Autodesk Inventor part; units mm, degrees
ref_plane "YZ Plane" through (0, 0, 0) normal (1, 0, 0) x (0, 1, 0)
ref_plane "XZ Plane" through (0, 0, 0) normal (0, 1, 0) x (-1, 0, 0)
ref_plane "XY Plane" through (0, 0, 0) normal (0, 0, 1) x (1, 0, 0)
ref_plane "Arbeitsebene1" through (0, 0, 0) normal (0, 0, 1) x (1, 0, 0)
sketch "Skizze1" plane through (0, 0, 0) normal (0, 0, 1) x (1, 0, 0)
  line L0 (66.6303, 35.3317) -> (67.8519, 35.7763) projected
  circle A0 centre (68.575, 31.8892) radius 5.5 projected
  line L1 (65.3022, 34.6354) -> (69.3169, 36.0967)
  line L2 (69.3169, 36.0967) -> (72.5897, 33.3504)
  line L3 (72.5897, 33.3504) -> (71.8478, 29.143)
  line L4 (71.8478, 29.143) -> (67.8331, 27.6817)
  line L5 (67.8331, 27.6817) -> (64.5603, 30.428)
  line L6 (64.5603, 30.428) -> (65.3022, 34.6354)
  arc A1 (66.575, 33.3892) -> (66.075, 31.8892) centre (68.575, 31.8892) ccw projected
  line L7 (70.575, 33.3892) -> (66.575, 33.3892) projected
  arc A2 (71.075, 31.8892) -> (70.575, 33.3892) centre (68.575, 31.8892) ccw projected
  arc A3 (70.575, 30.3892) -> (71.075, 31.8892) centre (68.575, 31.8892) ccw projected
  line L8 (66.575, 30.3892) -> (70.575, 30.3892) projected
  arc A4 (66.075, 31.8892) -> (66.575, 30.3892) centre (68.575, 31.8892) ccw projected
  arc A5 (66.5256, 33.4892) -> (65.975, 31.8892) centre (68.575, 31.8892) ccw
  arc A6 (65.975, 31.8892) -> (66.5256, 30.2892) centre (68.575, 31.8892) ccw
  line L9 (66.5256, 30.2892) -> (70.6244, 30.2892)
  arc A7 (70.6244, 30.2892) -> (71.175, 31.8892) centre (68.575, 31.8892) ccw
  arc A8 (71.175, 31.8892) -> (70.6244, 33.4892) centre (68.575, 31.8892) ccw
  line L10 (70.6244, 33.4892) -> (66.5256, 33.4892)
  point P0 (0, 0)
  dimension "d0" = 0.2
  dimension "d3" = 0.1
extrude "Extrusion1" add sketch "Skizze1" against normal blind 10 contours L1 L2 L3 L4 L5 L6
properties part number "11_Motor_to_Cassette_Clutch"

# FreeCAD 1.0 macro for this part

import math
import FreeCAD as App
import Part
import Sketcher

V = App.Vector
Q = App.Units.Quantity

doc = App.newDocument("Part")
body = doc.addObject("PartDesign::Body", "Body")

# Sketch on XY plane
sketch1 = doc.addObject("Sketcher::SketchObject", "Sketch")
body.addObject(sketch1)
sketch1.AttachmentSupport = (doc.XY_Plane, [""])
sketch1.MapMode = "FlatFace"
sketch1.addGeometry([
    Part.LineSegment(V(69.3, 36.1, 0), V(65.3, 34.6, 0)),  # 0
    Part.LineSegment(V(65.3, 34.6, 0), V(64.6, 30.4, 0)),  # 1
    Part.LineSegment(V(64.6, 30.4, 0), V(67.8, 27.7, 0)),  # 2
    Part.LineSegment(V(67.8, 27.7, 0), V(71.8, 29.1, 0)),  # 3
    Part.LineSegment(V(71.8, 29.1, 0), V(72.6, 33.4, 0)),  # 4
    Part.LineSegment(V(72.6, 33.4, 0), V(69.3, 36.1, 0)),  # 5
    Part.ArcOfCircle(Part.Circle(V(68.6, 31.9, 0), V(0, 0, 1), 2.6), math.radians(142), math.radians(180)),  # 6
    Part.LineSegment(V(66.5, 33.5, 0), V(70.6, 33.5, 0)),  # 7
    Part.ArcOfCircle(Part.Circle(V(68.6, 31.9, 0), V(0, 0, 1), 2.6), math.radians(0), math.radians(38)),  # 8
    Part.ArcOfCircle(Part.Circle(V(68.6, 31.9, 0), V(0, 0, 1), 2.6), math.radians(-38), math.radians(0)),  # 9
    Part.LineSegment(V(70.6, 30.3, 0), V(66.5, 30.3, 0)),  # 10
    Part.ArcOfCircle(Part.Circle(V(68.6, 31.9, 0), V(0, 0, 1), 2.6), math.radians(180), math.radians(218)),  # 11
], False)
sketch1.addConstraint([
    Sketcher.Constraint("Coincident", 0, 2, 1, 1),
    Sketcher.Constraint("Coincident", 1, 2, 2, 1),
    Sketcher.Constraint("Coincident", 2, 2, 3, 1),
    Sketcher.Constraint("Coincident", 3, 2, 4, 1),
    Sketcher.Constraint("Coincident", 4, 2, 5, 1),
    Sketcher.Constraint("Coincident", 5, 2, 0, 1),
    Sketcher.Constraint("Coincident", 6, 1, 7, 1),
    Sketcher.Constraint("Coincident", 7, 2, 8, 2),
    Sketcher.Constraint("Tangent", 8, 1, 9, 2),
    Sketcher.Constraint("Coincident", 9, 1, 10, 1),
    Sketcher.Constraint("Coincident", 10, 2, 11, 2),
    Sketcher.Constraint("Tangent", 11, 1, 6, 2),
    Sketcher.Constraint("Horizontal", 7),
    Sketcher.Constraint("Horizontal", 10),
    Sketcher.Constraint("Coincident", 8, 3, 6, 3),
    Sketcher.Constraint("Equal", 6, 8),
    Sketcher.Constraint("Equal", 8, 9),
    Sketcher.Constraint("Equal", 9, 11),
    Sketcher.Constraint("Parallel", 0, 3),
    Sketcher.Constraint("Parallel", 1, 4),
    Sketcher.Constraint("Parallel", 2, 5),
    Sketcher.Constraint("Horizontal", 11, 3, 8, 1),
    Sketcher.Constraint("Horizontal", 8, 1, 11, 1),
    Sketcher.Constraint("Vertical", 7, 2, 9, 1),
    Sketcher.Constraint("Equal", 0, 1),
    Sketcher.Constraint("Equal", 1, 2),
    Sketcher.Constraint("Equal", 2, 3),
    Sketcher.Constraint("Radius", 6, Q("2.6 mm")),
    Sketcher.Constraint("Angle", 0, Q("-159.9991 deg")),
    Sketcher.Constraint("Angle", 1, Q("-100.0003 deg")),
    Sketcher.Constraint("Angle", 2, Q("-40.001 deg")),
    Sketcher.Constraint("DistanceY", 6, 3, 6, 1, Q("1.6 mm")),
    Sketcher.Constraint("DistanceX", -1, 1, 6, 3, Q("68.575 mm")),
    Sketcher.Constraint("DistanceY", -1, 1, 1, 2, Q("30.428 mm")),
    Sketcher.Constraint("DistanceX", -1, 1, 2, 2, Q("67.833 mm")),
    Sketcher.Constraint("DistanceY", -1, 1, 3, 2, Q("29.143 mm")),
    Sketcher.Constraint("DistanceY", -1, 1, 6, 3, Q("31.8892 mm")),
])
pad1 = doc.addObject("PartDesign::Pad", "Pad")
body.addObject(pad1)
pad1.Profile = sketch1
pad1.Length = 10
pad1.Reversed = True

doc.recompute()
